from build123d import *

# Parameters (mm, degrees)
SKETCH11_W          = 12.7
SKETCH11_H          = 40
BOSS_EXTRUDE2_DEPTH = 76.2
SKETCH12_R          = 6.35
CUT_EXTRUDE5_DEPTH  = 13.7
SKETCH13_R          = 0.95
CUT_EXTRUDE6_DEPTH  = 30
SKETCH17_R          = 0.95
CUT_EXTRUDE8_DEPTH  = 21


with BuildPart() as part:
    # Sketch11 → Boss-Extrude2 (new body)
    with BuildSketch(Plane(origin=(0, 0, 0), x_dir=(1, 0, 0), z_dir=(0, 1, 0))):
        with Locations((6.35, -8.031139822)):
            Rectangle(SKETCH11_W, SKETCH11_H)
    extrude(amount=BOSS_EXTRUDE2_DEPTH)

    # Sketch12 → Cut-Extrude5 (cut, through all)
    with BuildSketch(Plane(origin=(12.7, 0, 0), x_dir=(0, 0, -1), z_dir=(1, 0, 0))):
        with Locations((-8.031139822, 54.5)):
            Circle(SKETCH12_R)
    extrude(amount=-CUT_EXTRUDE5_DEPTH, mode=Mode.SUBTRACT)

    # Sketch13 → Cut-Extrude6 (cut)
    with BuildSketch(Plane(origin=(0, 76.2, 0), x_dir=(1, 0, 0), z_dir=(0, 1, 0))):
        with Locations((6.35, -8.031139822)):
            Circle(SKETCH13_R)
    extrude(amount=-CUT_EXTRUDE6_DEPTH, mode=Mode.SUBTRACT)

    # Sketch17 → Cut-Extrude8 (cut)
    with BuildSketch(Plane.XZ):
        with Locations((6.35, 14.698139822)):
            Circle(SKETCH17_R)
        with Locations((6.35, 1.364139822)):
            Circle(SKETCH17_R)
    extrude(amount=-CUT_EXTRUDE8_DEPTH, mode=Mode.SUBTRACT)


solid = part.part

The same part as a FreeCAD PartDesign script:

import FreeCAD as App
import Part
import Sketcher
from FreeCAD import Vector
Q = App.Units.Quantity

doc = App.newDocument("Part")
body = doc.addObject("PartDesign::Body", "Body")

sketch1 = body.newObject("Sketcher::SketchObject", "Sketch")
sketch1.AttachmentSupport = (doc.getObject("XZ_Plane"), [""])
sketch1.MapMode = "FlatFace"
sketch1.addGeometry(Part.LineSegment(Vector(0, -11.96886, 0), Vector(0, 28.03114, 0)), False)
sketch1.addGeometry(Part.LineSegment(Vector(0, 28.03114, 0), Vector(12.7, 28.03114, 0)), False)
sketch1.addGeometry(Part.LineSegment(Vector(12.7, 28.03114, 0), Vector(12.7, -11.96886, 0)), False)
sketch1.addGeometry(Part.LineSegment(Vector(12.7, -11.96886, 0), Vector(0, -11.96886, 0)), False)
sketch1.addConstraint(Sketcher.Constraint("Coincident", 0, 2, 1, 1))
sketch1.addConstraint(Sketcher.Constraint("Coincident", 1, 2, 2, 1))
sketch1.addConstraint(Sketcher.Constraint("Coincident", 2, 2, 3, 1))
sketch1.addConstraint(Sketcher.Constraint("Coincident", 3, 2, 0, 1))
sketch1.addConstraint(Sketcher.Constraint("Vertical", 0))
sketch1.addConstraint(Sketcher.Constraint("Horizontal", 1))
sketch1.addConstraint(Sketcher.Constraint("Vertical", 2))
sketch1.addConstraint(Sketcher.Constraint("Horizontal", 3))
sketch1.addConstraint(Sketcher.Constraint("PointOnObject", 0, 2, -2))
sketch1.addConstraint(Sketcher.Constraint("DistanceY", 0, 1, 0, 2, Q("40 mm")))
sketch1.addConstraint(Sketcher.Constraint("DistanceX", 1, 1, 1, 2, Q("12.7 mm")))
sketch1.addConstraint(Sketcher.Constraint("DistanceY", -1, 1, 0, 2, Q("28.03114 mm")))
pad1 = body.newObject("PartDesign::Pad", "Pad")
pad1.Profile = sketch1
pad1.Length = 76.2
pad1.Reversed = True

sketch2 = body.newObject("Sketcher::SketchObject", "Sketch001")
sketch2.AttachmentSupport = (doc.getObject("YZ_Plane"), [""])
sketch2.MapMode = "FlatFace"
sketch2.AttachmentOffset = App.Placement(Vector(0, 0, 12.7), App.Rotation())
sketch2.addGeometry(Part.Circle(Vector(54.5, 8.03114, 0), Vector(0, 0, 1), 6.35), False)
sketch2.addConstraint(Sketcher.Constraint("Diameter", 0, Q("12.7 mm")))
sketch2.addConstraint(Sketcher.Constraint("DistanceX", -1, 1, 0, 3, Q("54.5 mm")))
sketch2.addConstraint(Sketcher.Constraint("DistanceY", -1, 1, 0, 3, Q("8.03114 mm")))
pocket1 = body.newObject("PartDesign::Pocket", "Pocket")
pocket1.Profile = sketch2
pocket1.Type = "ThroughAll"

sketch3 = body.newObject("Sketcher::SketchObject", "Sketch002")
sketch3.AttachmentSupport = (doc.getObject("XZ_Plane"), [""])
sketch3.MapMode = "FlatFace"
sketch3.AttachmentOffset = App.Placement(Vector(0, 0, -76.2), App.Rotation())
sketch3.addGeometry(Part.Circle(Vector(6.35, 8.03114, 0), Vector(0, 0, 1), 0.95), False)
sketch3.addConstraint(Sketcher.Constraint("Diameter", 0, Q("1.9 mm")))
sketch3.addConstraint(Sketcher.Constraint("DistanceX", -1, 1, 0, 3, Q("6.35 mm")))
sketch3.addConstraint(Sketcher.Constraint("DistanceY", -1, 1, 0, 3, Q("8.03114 mm")))
pocket2 = body.newObject("PartDesign::Pocket", "Pocket001")
pocket2.Profile = sketch3
pocket2.Length = 30
pocket2.Reversed = True

sketch4 = body.newObject("Sketcher::SketchObject", "Sketch003")
sketch4.AttachmentSupport = (doc.getObject("XZ_Plane"), [""])
sketch4.MapMode = "FlatFace"
sketch4.addGeometry(Part.Circle(Vector(6.35, 14.69814, 0), Vector(0, 0, 1), 0.95), False)
sketch4.addGeometry(Part.Circle(Vector(6.35, 1.36414, 0), Vector(0, 0, 1), 0.95), False)
sketch4.addConstraint(Sketcher.Constraint("Equal", 0, 1))
sketch4.addConstraint(Sketcher.Constraint("Vertical", 0, 3, 1, 3))
sketch4.addConstraint(Sketcher.Constraint("Diameter", 0, Q("1.9 mm")))
sketch4.addConstraint(Sketcher.Constraint("DistanceX", -1, 1, 0, 3, Q("6.35 mm")))
sketch4.addConstraint(Sketcher.Constraint("DistanceY", 1, 3, 0, 3, Q("13.334 mm")))
sketch4.addConstraint(Sketcher.Constraint("DistanceY", -1, 1, 0, 3, Q("14.69814 mm")))
pocket3 = body.newObject("PartDesign::Pocket", "Pocket002")
pocket3.Profile = sketch4
pocket3.Length = 21

doc.recompute()
